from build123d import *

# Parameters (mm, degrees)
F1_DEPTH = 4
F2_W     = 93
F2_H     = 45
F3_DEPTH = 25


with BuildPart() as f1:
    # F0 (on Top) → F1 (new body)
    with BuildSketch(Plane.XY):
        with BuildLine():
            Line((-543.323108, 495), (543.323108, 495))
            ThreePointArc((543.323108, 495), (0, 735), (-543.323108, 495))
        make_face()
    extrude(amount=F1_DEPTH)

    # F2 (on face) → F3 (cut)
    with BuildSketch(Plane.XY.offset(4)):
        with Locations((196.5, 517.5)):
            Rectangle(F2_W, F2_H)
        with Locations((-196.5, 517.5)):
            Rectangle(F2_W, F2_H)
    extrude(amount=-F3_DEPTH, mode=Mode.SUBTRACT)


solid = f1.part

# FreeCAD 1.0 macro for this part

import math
import FreeCAD as App
import Part
import Sketcher

V = App.Vector


def add_polygon(sketch, points):
    """Adds a closed chain of lines whose ends are joined by coincident constraints."""
    first, n = sketch.GeometryCount, len(points)
    for a, b in zip(points, points[1:] + points[:1]):
        sketch.addGeometry(Part.LineSegment(App.Vector(*a, 0), App.Vector(*b, 0)), False)
    for i in range(n):
        sketch.addConstraint(Sketcher.Constraint("Coincident", first + i, 2, first + (i + 1) % n, 1))

doc = App.newDocument("Part")
body = doc.addObject("PartDesign::Body", "Body")

# Sketch on XY plane
sketch1 = doc.addObject("Sketcher::SketchObject", "Sketch")
body.addObject(sketch1)
sketch1.AttachmentSupport = (doc.XY_Plane, [""])
sketch1.MapMode = "FlatFace"
sketch1.addGeometry(Part.LineSegment(V(-543, 495, 0), V(543, 495, 0)), False)
sketch1.addGeometry(Part.ArcOfCircle(Part.Circle(V(0, 0, 0), V(0, 0, 1), 735), math.radians(42), math.radians(138)), False)
sketch1.addConstraint(Sketcher.Constraint("Coincident", 0, 1, 1, 2))
sketch1.addConstraint(Sketcher.Constraint("Coincident", 1, 1, 0, 2))
sketch1.addConstraint(Sketcher.Constraint("Horizontal", 0))
sketch1.addConstraint(Sketcher.Constraint("Coincident", 1, 3, -1, 1))
sketch1.addConstraint(Sketcher.Constraint("Radius", 1, 734.999999))
sketch1.addConstraint(Sketcher.Constraint("DistanceY", -1, 1, 0, 1, 495.0))
pad1 = doc.addObject("PartDesign::Pad", "Pad")
body.addObject(pad1)
pad1.Profile = sketch1
pad1.Length = 4

# Sketch on XY plane
sketch2 = doc.addObject("Sketcher::SketchObject", "Sketch001")
body.addObject(sketch2)
sketch2.AttachmentSupport = (doc.XY_Plane, [""])
sketch2.MapMode = "FlatFace"
sketch2.AttachmentOffset = App.Placement(V(0, 0, 4), App.Rotation())
add_polygon(sketch2, [(150, 540), (150, 495), (243, 495), (243, 540)])  # lines 0-3
add_polygon(sketch2, [(-243, 540), (-243, 495), (-150, 495), (-150, 540)])  # lines 4-7
sketch2.addConstraint(Sketcher.Constraint("Vertical", 0))
sketch2.addConstraint(Sketcher.Constraint("Horizontal", 1))
sketch2.addConstraint(Sketcher.Constraint("Vertical", 2))
sketch2.addConstraint(Sketcher.Constraint("Horizontal", 3))
sketch2.addConstraint(Sketcher.Constraint("Vertical", 4))
sketch2.addConstraint(Sketcher.Constraint("Horizontal", 5))
sketch2.addConstraint(Sketcher.Constraint("Vertical", 6))
sketch2.addConstraint(Sketcher.Constraint("Horizontal", 7))
sketch2.addConstraint(Sketcher.Constraint("Symmetric", 1, 2, 4, 2, -2))
sketch2.addConstraint(Sketcher.Constraint("Symmetric", 3, 2, 6, 2, -2))
sketch2.addConstraint(Sketcher.Constraint("DistanceX", 1, 1, 1, 2, 93.0))
sketch2.addConstraint(Sketcher.Constraint("DistanceY", 0, 2, 0, 1, 45.0))
sketch2.addConstraint(Sketcher.Constraint("DistanceX", -1, 1, 0, 2, 150.0))
sketch2.addConstraint(Sketcher.Constraint("DistanceY", -1, 1, 0, 2, 495.0))
pocket1 = doc.addObject("PartDesign::Pocket", "Pocket")
body.addObject(pocket1)
pocket1.Profile = sketch2
pocket1.Length = 25

doc.recompute()
